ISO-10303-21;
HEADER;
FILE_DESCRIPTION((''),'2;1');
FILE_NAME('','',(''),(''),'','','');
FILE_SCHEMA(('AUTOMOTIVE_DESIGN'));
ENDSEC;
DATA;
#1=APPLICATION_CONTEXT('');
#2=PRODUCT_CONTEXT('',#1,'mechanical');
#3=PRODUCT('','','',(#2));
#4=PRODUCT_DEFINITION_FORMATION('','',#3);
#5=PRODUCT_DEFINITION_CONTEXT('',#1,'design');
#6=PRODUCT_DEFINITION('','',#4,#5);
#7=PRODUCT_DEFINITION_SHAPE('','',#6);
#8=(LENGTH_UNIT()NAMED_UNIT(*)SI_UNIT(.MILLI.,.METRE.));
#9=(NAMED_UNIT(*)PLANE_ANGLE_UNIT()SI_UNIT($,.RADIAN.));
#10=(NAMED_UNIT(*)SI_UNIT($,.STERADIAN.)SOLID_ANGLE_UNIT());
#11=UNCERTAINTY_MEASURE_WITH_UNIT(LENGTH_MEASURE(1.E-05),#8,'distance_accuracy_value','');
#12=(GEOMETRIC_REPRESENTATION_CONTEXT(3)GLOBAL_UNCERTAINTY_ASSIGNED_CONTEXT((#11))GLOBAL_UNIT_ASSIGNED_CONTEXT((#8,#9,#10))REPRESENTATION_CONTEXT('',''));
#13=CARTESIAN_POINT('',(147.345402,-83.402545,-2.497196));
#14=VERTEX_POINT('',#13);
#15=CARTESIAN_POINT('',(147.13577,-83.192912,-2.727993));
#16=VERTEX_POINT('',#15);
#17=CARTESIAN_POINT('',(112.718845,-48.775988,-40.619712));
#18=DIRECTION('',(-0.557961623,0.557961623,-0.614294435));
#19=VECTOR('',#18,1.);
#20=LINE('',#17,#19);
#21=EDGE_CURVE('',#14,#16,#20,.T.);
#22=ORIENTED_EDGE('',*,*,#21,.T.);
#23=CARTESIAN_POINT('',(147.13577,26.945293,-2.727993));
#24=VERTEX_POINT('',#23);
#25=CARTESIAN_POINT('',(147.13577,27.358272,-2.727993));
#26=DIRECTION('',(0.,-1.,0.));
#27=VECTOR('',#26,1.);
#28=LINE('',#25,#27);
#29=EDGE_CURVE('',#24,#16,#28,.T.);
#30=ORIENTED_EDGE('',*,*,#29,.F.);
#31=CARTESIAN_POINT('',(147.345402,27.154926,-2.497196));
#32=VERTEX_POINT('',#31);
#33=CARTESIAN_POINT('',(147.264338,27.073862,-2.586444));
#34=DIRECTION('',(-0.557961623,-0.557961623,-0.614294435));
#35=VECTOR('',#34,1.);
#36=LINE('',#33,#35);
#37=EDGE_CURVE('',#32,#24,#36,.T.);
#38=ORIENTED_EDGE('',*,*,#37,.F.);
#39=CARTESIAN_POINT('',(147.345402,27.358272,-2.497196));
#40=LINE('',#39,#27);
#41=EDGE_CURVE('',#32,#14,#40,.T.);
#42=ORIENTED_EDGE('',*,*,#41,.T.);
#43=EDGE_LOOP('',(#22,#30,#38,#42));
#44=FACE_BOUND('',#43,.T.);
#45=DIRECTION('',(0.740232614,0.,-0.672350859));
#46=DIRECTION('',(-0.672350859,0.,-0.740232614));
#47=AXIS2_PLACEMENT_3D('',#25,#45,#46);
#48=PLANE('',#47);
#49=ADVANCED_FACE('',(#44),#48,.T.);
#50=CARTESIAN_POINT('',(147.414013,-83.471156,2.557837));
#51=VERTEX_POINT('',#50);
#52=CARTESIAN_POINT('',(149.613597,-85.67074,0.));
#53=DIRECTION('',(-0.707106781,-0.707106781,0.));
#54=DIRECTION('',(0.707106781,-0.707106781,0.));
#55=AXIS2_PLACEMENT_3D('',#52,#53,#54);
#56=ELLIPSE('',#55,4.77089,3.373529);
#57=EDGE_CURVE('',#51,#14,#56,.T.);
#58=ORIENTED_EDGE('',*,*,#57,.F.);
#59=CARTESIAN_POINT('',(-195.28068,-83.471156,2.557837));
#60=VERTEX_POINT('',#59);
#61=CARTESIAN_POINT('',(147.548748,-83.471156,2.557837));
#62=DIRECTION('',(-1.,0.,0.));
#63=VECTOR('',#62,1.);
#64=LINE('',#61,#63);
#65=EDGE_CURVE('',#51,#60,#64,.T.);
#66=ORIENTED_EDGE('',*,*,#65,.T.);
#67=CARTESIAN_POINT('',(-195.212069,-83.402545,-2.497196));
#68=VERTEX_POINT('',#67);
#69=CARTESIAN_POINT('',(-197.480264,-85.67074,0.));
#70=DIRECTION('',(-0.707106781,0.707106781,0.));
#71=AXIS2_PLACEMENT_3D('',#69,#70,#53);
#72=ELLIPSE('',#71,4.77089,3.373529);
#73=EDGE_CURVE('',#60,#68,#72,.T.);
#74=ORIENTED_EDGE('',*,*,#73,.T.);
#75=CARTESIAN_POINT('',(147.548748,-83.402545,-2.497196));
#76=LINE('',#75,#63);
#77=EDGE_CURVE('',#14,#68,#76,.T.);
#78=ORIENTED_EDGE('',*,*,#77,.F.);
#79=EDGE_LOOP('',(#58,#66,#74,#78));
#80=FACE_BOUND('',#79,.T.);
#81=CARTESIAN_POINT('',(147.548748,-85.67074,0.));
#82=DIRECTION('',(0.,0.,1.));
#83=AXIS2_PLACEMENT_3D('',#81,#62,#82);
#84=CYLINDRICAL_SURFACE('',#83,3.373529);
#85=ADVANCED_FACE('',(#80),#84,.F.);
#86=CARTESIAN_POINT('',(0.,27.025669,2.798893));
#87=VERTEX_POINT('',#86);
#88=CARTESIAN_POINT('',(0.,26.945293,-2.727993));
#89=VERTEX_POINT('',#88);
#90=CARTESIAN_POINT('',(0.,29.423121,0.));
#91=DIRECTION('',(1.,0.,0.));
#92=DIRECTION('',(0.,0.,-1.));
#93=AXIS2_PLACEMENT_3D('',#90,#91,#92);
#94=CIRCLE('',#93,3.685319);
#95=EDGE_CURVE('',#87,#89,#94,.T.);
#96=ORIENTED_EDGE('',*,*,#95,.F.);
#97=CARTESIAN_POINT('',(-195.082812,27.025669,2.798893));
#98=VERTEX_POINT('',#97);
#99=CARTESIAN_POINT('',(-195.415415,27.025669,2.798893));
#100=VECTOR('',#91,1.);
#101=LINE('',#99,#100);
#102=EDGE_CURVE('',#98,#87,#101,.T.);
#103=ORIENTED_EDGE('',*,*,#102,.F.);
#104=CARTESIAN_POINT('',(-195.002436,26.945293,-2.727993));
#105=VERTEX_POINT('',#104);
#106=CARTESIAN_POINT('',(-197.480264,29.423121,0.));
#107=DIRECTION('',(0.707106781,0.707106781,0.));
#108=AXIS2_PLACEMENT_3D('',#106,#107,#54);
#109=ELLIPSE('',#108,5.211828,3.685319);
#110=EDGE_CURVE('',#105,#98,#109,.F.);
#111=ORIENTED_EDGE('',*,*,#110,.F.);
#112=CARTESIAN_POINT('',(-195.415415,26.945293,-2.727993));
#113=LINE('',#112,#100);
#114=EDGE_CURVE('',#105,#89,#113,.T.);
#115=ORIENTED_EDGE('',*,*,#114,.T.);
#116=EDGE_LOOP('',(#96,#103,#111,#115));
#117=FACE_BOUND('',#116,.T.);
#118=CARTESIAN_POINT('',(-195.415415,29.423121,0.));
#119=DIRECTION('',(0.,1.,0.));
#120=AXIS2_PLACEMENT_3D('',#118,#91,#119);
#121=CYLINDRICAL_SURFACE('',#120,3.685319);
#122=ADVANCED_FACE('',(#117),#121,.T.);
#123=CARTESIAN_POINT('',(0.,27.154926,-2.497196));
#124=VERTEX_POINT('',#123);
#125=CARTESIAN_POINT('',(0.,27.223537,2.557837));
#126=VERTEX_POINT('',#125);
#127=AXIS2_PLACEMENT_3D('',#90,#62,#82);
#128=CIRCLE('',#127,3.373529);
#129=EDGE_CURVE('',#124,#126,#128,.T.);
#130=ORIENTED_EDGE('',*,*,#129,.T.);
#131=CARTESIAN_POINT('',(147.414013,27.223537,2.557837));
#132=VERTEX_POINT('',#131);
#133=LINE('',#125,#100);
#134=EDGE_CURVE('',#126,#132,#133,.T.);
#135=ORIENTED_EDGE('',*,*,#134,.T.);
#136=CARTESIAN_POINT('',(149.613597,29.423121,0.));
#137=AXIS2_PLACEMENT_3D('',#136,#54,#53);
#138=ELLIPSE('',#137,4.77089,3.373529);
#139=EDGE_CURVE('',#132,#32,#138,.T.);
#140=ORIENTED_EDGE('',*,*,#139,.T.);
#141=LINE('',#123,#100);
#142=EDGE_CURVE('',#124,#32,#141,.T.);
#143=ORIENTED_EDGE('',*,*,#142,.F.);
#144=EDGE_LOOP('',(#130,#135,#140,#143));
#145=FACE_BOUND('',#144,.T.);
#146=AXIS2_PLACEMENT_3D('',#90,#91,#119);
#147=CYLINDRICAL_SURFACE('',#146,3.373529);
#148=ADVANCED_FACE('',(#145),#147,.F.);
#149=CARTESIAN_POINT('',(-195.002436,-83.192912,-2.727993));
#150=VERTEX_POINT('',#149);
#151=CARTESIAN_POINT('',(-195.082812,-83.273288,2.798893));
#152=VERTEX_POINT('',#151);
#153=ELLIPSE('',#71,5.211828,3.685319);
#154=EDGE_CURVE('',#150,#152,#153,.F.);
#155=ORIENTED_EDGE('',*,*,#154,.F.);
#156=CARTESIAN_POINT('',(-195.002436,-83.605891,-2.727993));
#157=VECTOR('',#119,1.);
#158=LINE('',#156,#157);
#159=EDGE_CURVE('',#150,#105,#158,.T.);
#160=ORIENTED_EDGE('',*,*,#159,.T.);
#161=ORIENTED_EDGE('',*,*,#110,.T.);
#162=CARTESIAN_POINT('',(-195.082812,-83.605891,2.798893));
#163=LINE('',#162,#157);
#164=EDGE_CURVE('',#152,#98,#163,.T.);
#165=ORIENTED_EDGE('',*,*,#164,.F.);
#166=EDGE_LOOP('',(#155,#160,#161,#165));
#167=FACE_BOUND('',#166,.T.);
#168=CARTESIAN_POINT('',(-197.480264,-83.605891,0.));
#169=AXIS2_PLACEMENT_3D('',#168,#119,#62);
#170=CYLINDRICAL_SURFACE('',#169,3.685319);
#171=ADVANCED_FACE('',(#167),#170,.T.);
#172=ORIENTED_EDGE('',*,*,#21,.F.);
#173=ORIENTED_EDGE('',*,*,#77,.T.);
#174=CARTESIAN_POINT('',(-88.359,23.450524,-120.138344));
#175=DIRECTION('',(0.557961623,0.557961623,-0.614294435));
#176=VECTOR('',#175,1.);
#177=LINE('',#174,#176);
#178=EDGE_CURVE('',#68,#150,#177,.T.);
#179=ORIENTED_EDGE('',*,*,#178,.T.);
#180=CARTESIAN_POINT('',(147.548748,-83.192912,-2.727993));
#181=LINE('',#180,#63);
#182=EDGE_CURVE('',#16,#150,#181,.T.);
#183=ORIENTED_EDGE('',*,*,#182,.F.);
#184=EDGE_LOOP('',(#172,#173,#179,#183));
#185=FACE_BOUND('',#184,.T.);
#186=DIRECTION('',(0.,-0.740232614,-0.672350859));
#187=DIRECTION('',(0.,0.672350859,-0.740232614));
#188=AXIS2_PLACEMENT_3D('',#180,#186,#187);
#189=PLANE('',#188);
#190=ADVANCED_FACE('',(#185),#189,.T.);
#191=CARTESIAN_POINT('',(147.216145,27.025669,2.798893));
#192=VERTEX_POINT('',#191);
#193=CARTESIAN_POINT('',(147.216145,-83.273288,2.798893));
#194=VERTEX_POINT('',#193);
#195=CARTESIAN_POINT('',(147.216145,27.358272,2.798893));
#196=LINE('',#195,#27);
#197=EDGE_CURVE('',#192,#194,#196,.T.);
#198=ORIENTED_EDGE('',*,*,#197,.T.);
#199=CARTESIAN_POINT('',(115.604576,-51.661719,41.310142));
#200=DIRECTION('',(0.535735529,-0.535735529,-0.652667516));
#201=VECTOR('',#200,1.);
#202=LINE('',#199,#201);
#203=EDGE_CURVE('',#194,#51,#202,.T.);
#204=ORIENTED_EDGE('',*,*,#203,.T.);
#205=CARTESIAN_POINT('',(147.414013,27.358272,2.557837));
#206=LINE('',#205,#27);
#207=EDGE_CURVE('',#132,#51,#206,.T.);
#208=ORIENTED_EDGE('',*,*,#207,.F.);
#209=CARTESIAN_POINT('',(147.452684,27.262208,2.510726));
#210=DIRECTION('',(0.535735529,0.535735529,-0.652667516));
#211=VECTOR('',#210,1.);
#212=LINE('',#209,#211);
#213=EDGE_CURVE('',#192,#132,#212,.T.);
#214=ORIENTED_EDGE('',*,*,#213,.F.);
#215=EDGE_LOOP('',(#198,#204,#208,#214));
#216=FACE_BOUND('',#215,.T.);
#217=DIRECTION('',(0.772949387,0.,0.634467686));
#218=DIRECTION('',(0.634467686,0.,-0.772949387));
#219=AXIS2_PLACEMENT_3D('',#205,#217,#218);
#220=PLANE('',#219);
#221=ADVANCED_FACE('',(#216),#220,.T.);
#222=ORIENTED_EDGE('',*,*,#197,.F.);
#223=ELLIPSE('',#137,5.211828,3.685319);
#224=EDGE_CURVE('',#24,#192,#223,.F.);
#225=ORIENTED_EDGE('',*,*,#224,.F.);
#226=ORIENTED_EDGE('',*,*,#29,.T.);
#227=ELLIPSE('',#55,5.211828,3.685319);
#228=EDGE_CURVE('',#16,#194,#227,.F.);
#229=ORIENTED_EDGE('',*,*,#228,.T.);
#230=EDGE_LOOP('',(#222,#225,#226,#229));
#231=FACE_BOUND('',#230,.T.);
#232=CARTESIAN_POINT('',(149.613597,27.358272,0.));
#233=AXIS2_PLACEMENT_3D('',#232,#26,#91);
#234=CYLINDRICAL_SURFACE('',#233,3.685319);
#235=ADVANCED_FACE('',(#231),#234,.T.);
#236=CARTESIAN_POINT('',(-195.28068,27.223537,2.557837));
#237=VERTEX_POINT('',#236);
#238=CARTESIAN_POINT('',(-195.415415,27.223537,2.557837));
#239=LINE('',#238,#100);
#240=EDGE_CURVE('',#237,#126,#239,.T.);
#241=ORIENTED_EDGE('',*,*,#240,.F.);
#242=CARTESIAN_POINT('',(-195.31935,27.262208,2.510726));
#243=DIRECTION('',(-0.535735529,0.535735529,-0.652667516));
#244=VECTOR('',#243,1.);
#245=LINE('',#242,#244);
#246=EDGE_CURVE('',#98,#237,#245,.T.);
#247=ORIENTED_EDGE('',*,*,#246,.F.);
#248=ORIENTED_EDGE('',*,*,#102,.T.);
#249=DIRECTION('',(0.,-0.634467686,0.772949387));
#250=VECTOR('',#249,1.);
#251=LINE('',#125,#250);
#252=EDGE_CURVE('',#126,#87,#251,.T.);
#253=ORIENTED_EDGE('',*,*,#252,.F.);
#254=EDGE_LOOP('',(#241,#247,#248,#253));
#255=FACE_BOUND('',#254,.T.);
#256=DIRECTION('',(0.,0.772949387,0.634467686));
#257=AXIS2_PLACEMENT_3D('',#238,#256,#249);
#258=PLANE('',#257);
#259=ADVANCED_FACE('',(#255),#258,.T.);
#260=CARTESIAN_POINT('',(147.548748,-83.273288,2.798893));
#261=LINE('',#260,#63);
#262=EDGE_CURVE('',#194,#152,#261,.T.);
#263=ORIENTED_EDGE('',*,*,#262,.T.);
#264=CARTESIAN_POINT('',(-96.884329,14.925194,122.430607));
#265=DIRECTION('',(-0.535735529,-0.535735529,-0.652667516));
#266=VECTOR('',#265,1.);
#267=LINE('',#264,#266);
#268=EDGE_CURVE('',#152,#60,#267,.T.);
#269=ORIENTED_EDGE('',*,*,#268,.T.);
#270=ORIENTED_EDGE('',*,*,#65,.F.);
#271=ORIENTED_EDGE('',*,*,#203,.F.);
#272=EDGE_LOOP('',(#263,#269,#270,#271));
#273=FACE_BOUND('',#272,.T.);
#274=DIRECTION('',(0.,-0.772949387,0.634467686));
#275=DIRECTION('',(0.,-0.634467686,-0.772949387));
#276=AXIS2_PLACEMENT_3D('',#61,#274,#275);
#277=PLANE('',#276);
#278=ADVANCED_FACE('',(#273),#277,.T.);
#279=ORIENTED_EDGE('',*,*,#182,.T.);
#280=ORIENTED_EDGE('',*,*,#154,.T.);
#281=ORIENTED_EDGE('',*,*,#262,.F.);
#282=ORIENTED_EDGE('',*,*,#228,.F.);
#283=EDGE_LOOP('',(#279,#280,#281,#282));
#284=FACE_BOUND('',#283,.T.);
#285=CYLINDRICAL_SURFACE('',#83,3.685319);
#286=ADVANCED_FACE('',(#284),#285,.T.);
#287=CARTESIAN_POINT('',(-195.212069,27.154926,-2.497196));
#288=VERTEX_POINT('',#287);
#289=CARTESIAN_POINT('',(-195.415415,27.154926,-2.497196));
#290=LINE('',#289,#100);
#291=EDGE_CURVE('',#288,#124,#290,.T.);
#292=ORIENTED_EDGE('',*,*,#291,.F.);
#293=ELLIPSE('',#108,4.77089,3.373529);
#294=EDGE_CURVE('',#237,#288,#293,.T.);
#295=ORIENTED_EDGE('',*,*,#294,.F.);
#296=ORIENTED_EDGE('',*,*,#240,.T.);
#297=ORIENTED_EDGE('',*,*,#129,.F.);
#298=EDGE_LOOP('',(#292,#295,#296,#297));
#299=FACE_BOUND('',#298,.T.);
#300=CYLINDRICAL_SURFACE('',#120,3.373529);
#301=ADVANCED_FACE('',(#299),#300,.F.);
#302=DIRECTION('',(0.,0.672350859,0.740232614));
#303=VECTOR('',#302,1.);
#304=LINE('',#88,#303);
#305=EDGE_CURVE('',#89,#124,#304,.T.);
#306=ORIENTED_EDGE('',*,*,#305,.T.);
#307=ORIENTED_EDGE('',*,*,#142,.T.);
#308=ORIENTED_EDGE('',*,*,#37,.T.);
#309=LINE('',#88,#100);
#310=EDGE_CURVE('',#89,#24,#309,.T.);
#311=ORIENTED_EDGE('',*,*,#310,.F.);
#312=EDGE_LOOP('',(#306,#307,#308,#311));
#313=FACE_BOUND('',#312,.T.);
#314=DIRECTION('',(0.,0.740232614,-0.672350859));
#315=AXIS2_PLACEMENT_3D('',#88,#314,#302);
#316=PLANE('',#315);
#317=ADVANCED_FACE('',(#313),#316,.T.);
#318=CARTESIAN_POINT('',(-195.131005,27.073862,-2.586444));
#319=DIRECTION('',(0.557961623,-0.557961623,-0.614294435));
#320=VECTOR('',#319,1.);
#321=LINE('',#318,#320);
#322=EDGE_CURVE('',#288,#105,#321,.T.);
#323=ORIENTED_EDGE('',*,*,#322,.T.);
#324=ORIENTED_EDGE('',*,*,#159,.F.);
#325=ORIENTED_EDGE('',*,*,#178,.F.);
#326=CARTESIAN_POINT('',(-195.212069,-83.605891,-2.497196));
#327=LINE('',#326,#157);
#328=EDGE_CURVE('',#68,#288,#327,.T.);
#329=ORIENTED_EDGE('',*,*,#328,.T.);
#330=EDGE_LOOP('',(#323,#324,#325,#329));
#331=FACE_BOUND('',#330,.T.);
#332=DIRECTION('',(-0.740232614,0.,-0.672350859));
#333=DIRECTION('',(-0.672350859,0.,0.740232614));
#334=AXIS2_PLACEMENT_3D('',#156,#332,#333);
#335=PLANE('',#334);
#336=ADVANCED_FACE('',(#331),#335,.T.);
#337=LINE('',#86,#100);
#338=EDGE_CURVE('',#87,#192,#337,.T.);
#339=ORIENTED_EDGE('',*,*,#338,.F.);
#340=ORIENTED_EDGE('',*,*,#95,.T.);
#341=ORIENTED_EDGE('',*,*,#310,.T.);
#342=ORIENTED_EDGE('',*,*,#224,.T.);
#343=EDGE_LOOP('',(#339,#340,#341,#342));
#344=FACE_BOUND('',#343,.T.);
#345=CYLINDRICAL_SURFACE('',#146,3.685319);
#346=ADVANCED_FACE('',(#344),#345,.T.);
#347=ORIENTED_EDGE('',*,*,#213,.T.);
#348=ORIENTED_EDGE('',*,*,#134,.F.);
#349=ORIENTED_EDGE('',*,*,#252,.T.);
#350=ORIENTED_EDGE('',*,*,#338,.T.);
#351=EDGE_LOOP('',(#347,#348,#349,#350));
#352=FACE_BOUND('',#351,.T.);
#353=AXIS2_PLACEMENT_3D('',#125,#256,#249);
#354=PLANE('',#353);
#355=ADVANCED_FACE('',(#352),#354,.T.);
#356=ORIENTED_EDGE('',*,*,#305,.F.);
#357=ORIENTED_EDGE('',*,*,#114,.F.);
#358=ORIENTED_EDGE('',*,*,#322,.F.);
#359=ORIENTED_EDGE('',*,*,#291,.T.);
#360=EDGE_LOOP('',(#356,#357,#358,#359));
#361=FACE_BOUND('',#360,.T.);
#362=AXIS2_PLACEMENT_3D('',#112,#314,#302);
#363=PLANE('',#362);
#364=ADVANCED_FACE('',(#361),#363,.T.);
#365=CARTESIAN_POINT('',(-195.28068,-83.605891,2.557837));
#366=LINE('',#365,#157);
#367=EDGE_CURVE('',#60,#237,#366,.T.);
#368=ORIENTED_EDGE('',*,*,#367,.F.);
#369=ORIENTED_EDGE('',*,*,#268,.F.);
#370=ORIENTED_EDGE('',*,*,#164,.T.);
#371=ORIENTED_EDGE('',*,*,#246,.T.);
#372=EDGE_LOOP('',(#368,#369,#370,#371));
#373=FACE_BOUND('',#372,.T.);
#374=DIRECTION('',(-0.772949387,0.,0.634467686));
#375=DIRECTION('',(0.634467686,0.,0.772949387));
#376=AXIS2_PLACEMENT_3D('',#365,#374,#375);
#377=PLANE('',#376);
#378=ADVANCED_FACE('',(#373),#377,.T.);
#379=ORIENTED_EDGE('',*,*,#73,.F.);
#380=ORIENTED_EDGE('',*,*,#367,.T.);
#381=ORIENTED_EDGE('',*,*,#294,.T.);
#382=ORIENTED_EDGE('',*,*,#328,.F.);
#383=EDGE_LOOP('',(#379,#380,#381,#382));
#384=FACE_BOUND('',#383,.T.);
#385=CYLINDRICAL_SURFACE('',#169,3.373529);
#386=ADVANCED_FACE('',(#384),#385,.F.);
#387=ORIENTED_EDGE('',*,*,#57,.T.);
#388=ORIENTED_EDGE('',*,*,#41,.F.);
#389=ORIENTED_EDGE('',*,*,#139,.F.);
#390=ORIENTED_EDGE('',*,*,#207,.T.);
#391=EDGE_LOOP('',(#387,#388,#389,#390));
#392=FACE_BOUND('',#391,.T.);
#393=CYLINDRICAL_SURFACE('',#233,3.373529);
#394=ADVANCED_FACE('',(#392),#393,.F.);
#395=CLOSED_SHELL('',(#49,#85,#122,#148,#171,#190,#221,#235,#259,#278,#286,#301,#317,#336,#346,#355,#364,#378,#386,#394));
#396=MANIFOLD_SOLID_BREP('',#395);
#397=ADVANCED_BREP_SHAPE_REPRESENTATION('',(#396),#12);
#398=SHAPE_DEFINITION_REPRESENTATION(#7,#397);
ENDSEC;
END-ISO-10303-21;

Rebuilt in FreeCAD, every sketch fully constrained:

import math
import FreeCAD as App
import Part
import Sketcher

V = App.Vector
Q = App.Units.Quantity

doc = App.newDocument("Part")
body = doc.addObject("PartDesign::Body", "Body")

sketch1 = doc.addObject("Sketcher::SketchObject", "Sketch")
body.addObject(sketch1)
sketch1.AttachmentSupport = (doc.YZ_Plane, [""])
sketch1.MapMode = "FlatFace"
sketch1.addGeometry(Part.LineSegment(V(26.945293, -2.727993, 0), V(27.154926, -2.497196, 0)), False)
sketch1.addGeometry(Part.ArcOfCircle(Part.Circle(V(29.423121, 0, 0), V(0, 0, 1), 3.373529), math.radians(130.693523), math.radians(227.751234)), False)
sketch1.addGeometry(Part.LineSegment(V(27.223537, 2.557837, 0), V(27.025669, 2.798893, 0)), False)
sketch1.addGeometry(Part.ArcOfCircle(Part.Circle(V(29.423121, 0, 0), V(0, 0, 1), 3.685319), math.radians(130.582421), math.radians(227.751235)), False)
sketch1.addConstraint(Sketcher.Constraint("Coincident", 0, 2, 1, 2))
sketch1.addConstraint(Sketcher.Constraint("Coincident", 1, 1, 2, 1))
sketch1.addConstraint(Sketcher.Constraint("Coincident", 2, 2, 3, 1))
sketch1.addConstraint(Sketcher.Constraint("Coincident", 3, 2, 0, 1))
sketch1.addConstraint(Sketcher.Constraint("Coincident", 3, 3, 1, 3))
sketch1.addConstraint(Sketcher.Constraint("PointOnObject", 1, 3, -1))
sketch1.addConstraint(Sketcher.Constraint("Radius", 1, Q("3.373529 mm")))
sketch1.addConstraint(Sketcher.Constraint("Radius", 3, Q("3.685319 mm")))
sketch1.addConstraint(Sketcher.Constraint("DistanceX", -1, 1, 1, 3, Q("29.423121 mm")))
sketch1.addConstraint(Sketcher.Constraint("DistanceX", -1, 1, 2, 2, Q("27.025669 mm")))
sketch1.addConstraint(Sketcher.Constraint("DistanceX", 0, 2, 1, 1, Q("0.068611 mm")))
sketch1.addConstraint(Sketcher.Constraint("DistanceX", 2, 2, 1, 1, Q("0.197868 mm")))
sketch1.addConstraint(Sketcher.Constraint("DistanceY", 3, 2, 1, 1, Q("5.28583 mm")))

sketch2 = doc.addObject("Sketcher::SketchObject", "Sketch001")
body.addObject(sketch2)
sketch2.AttachmentSupport = (doc.XY_Plane, [""])
sketch2.MapMode = "FlatFace"
sketch2.addGeometry(Part.LineSegment(V(-194.933333, 26.87619, 0), V(-194.933333, -83.12381, 0)), False)
sketch2.addGeometry(Part.LineSegment(V(-194.933333, -83.12381, 0), V(147.066667, -83.12381, 0)), False)
sketch2.addGeometry(Part.LineSegment(V(147.066667, -83.12381, 0), V(147.066667, 26.87619, 0)), False)
sketch2.addGeometry(Part.LineSegment(V(147.066667, 26.87619, 0), V(-194.933333, 26.87619, 0)), False)
sketch2.addConstraint(Sketcher.Constraint("Coincident", 0, 2, 1, 1))
sketch2.addConstraint(Sketcher.Constraint("Coincident", 1, 2, 2, 1))
sketch2.addConstraint(Sketcher.Constraint("Coincident", 2, 2, 3, 1))
sketch2.addConstraint(Sketcher.Constraint("Coincident", 3, 2, 0, 1))
sketch2.addConstraint(Sketcher.Constraint("Vertical", 0))
sketch2.addConstraint(Sketcher.Constraint("Horizontal", 1))
sketch2.addConstraint(Sketcher.Constraint("Vertical", 2))
sketch2.addConstraint(Sketcher.Constraint("Horizontal", 3))
sketch2.addConstraint(Sketcher.Constraint("DistanceX", 1, 1, 1, 2, Q("342 mm")))
sketch2.addConstraint(Sketcher.Constraint("DistanceY", 0, 2, 0, 1, Q("110 mm")))
sketch2.addConstraint(Sketcher.Constraint("DistanceY", 0, 2, -1, 1, Q("83.12381 mm")))
sketch2.addConstraint(Sketcher.Constraint("DistanceX", 0, 2, -1, 1, Q("194.933333 mm")))
doc.recompute()

additivepipe = doc.addObject("PartDesign::AdditivePipe", "AdditivePipe")
body.addObject(additivepipe)
additivepipe.Profile = sketch1
additivepipe.Spine = (sketch2, ["Edge1", "Edge2", "Edge3", "Edge4"])
additivepipe.Transition = "Right corner"

doc.recompute()
